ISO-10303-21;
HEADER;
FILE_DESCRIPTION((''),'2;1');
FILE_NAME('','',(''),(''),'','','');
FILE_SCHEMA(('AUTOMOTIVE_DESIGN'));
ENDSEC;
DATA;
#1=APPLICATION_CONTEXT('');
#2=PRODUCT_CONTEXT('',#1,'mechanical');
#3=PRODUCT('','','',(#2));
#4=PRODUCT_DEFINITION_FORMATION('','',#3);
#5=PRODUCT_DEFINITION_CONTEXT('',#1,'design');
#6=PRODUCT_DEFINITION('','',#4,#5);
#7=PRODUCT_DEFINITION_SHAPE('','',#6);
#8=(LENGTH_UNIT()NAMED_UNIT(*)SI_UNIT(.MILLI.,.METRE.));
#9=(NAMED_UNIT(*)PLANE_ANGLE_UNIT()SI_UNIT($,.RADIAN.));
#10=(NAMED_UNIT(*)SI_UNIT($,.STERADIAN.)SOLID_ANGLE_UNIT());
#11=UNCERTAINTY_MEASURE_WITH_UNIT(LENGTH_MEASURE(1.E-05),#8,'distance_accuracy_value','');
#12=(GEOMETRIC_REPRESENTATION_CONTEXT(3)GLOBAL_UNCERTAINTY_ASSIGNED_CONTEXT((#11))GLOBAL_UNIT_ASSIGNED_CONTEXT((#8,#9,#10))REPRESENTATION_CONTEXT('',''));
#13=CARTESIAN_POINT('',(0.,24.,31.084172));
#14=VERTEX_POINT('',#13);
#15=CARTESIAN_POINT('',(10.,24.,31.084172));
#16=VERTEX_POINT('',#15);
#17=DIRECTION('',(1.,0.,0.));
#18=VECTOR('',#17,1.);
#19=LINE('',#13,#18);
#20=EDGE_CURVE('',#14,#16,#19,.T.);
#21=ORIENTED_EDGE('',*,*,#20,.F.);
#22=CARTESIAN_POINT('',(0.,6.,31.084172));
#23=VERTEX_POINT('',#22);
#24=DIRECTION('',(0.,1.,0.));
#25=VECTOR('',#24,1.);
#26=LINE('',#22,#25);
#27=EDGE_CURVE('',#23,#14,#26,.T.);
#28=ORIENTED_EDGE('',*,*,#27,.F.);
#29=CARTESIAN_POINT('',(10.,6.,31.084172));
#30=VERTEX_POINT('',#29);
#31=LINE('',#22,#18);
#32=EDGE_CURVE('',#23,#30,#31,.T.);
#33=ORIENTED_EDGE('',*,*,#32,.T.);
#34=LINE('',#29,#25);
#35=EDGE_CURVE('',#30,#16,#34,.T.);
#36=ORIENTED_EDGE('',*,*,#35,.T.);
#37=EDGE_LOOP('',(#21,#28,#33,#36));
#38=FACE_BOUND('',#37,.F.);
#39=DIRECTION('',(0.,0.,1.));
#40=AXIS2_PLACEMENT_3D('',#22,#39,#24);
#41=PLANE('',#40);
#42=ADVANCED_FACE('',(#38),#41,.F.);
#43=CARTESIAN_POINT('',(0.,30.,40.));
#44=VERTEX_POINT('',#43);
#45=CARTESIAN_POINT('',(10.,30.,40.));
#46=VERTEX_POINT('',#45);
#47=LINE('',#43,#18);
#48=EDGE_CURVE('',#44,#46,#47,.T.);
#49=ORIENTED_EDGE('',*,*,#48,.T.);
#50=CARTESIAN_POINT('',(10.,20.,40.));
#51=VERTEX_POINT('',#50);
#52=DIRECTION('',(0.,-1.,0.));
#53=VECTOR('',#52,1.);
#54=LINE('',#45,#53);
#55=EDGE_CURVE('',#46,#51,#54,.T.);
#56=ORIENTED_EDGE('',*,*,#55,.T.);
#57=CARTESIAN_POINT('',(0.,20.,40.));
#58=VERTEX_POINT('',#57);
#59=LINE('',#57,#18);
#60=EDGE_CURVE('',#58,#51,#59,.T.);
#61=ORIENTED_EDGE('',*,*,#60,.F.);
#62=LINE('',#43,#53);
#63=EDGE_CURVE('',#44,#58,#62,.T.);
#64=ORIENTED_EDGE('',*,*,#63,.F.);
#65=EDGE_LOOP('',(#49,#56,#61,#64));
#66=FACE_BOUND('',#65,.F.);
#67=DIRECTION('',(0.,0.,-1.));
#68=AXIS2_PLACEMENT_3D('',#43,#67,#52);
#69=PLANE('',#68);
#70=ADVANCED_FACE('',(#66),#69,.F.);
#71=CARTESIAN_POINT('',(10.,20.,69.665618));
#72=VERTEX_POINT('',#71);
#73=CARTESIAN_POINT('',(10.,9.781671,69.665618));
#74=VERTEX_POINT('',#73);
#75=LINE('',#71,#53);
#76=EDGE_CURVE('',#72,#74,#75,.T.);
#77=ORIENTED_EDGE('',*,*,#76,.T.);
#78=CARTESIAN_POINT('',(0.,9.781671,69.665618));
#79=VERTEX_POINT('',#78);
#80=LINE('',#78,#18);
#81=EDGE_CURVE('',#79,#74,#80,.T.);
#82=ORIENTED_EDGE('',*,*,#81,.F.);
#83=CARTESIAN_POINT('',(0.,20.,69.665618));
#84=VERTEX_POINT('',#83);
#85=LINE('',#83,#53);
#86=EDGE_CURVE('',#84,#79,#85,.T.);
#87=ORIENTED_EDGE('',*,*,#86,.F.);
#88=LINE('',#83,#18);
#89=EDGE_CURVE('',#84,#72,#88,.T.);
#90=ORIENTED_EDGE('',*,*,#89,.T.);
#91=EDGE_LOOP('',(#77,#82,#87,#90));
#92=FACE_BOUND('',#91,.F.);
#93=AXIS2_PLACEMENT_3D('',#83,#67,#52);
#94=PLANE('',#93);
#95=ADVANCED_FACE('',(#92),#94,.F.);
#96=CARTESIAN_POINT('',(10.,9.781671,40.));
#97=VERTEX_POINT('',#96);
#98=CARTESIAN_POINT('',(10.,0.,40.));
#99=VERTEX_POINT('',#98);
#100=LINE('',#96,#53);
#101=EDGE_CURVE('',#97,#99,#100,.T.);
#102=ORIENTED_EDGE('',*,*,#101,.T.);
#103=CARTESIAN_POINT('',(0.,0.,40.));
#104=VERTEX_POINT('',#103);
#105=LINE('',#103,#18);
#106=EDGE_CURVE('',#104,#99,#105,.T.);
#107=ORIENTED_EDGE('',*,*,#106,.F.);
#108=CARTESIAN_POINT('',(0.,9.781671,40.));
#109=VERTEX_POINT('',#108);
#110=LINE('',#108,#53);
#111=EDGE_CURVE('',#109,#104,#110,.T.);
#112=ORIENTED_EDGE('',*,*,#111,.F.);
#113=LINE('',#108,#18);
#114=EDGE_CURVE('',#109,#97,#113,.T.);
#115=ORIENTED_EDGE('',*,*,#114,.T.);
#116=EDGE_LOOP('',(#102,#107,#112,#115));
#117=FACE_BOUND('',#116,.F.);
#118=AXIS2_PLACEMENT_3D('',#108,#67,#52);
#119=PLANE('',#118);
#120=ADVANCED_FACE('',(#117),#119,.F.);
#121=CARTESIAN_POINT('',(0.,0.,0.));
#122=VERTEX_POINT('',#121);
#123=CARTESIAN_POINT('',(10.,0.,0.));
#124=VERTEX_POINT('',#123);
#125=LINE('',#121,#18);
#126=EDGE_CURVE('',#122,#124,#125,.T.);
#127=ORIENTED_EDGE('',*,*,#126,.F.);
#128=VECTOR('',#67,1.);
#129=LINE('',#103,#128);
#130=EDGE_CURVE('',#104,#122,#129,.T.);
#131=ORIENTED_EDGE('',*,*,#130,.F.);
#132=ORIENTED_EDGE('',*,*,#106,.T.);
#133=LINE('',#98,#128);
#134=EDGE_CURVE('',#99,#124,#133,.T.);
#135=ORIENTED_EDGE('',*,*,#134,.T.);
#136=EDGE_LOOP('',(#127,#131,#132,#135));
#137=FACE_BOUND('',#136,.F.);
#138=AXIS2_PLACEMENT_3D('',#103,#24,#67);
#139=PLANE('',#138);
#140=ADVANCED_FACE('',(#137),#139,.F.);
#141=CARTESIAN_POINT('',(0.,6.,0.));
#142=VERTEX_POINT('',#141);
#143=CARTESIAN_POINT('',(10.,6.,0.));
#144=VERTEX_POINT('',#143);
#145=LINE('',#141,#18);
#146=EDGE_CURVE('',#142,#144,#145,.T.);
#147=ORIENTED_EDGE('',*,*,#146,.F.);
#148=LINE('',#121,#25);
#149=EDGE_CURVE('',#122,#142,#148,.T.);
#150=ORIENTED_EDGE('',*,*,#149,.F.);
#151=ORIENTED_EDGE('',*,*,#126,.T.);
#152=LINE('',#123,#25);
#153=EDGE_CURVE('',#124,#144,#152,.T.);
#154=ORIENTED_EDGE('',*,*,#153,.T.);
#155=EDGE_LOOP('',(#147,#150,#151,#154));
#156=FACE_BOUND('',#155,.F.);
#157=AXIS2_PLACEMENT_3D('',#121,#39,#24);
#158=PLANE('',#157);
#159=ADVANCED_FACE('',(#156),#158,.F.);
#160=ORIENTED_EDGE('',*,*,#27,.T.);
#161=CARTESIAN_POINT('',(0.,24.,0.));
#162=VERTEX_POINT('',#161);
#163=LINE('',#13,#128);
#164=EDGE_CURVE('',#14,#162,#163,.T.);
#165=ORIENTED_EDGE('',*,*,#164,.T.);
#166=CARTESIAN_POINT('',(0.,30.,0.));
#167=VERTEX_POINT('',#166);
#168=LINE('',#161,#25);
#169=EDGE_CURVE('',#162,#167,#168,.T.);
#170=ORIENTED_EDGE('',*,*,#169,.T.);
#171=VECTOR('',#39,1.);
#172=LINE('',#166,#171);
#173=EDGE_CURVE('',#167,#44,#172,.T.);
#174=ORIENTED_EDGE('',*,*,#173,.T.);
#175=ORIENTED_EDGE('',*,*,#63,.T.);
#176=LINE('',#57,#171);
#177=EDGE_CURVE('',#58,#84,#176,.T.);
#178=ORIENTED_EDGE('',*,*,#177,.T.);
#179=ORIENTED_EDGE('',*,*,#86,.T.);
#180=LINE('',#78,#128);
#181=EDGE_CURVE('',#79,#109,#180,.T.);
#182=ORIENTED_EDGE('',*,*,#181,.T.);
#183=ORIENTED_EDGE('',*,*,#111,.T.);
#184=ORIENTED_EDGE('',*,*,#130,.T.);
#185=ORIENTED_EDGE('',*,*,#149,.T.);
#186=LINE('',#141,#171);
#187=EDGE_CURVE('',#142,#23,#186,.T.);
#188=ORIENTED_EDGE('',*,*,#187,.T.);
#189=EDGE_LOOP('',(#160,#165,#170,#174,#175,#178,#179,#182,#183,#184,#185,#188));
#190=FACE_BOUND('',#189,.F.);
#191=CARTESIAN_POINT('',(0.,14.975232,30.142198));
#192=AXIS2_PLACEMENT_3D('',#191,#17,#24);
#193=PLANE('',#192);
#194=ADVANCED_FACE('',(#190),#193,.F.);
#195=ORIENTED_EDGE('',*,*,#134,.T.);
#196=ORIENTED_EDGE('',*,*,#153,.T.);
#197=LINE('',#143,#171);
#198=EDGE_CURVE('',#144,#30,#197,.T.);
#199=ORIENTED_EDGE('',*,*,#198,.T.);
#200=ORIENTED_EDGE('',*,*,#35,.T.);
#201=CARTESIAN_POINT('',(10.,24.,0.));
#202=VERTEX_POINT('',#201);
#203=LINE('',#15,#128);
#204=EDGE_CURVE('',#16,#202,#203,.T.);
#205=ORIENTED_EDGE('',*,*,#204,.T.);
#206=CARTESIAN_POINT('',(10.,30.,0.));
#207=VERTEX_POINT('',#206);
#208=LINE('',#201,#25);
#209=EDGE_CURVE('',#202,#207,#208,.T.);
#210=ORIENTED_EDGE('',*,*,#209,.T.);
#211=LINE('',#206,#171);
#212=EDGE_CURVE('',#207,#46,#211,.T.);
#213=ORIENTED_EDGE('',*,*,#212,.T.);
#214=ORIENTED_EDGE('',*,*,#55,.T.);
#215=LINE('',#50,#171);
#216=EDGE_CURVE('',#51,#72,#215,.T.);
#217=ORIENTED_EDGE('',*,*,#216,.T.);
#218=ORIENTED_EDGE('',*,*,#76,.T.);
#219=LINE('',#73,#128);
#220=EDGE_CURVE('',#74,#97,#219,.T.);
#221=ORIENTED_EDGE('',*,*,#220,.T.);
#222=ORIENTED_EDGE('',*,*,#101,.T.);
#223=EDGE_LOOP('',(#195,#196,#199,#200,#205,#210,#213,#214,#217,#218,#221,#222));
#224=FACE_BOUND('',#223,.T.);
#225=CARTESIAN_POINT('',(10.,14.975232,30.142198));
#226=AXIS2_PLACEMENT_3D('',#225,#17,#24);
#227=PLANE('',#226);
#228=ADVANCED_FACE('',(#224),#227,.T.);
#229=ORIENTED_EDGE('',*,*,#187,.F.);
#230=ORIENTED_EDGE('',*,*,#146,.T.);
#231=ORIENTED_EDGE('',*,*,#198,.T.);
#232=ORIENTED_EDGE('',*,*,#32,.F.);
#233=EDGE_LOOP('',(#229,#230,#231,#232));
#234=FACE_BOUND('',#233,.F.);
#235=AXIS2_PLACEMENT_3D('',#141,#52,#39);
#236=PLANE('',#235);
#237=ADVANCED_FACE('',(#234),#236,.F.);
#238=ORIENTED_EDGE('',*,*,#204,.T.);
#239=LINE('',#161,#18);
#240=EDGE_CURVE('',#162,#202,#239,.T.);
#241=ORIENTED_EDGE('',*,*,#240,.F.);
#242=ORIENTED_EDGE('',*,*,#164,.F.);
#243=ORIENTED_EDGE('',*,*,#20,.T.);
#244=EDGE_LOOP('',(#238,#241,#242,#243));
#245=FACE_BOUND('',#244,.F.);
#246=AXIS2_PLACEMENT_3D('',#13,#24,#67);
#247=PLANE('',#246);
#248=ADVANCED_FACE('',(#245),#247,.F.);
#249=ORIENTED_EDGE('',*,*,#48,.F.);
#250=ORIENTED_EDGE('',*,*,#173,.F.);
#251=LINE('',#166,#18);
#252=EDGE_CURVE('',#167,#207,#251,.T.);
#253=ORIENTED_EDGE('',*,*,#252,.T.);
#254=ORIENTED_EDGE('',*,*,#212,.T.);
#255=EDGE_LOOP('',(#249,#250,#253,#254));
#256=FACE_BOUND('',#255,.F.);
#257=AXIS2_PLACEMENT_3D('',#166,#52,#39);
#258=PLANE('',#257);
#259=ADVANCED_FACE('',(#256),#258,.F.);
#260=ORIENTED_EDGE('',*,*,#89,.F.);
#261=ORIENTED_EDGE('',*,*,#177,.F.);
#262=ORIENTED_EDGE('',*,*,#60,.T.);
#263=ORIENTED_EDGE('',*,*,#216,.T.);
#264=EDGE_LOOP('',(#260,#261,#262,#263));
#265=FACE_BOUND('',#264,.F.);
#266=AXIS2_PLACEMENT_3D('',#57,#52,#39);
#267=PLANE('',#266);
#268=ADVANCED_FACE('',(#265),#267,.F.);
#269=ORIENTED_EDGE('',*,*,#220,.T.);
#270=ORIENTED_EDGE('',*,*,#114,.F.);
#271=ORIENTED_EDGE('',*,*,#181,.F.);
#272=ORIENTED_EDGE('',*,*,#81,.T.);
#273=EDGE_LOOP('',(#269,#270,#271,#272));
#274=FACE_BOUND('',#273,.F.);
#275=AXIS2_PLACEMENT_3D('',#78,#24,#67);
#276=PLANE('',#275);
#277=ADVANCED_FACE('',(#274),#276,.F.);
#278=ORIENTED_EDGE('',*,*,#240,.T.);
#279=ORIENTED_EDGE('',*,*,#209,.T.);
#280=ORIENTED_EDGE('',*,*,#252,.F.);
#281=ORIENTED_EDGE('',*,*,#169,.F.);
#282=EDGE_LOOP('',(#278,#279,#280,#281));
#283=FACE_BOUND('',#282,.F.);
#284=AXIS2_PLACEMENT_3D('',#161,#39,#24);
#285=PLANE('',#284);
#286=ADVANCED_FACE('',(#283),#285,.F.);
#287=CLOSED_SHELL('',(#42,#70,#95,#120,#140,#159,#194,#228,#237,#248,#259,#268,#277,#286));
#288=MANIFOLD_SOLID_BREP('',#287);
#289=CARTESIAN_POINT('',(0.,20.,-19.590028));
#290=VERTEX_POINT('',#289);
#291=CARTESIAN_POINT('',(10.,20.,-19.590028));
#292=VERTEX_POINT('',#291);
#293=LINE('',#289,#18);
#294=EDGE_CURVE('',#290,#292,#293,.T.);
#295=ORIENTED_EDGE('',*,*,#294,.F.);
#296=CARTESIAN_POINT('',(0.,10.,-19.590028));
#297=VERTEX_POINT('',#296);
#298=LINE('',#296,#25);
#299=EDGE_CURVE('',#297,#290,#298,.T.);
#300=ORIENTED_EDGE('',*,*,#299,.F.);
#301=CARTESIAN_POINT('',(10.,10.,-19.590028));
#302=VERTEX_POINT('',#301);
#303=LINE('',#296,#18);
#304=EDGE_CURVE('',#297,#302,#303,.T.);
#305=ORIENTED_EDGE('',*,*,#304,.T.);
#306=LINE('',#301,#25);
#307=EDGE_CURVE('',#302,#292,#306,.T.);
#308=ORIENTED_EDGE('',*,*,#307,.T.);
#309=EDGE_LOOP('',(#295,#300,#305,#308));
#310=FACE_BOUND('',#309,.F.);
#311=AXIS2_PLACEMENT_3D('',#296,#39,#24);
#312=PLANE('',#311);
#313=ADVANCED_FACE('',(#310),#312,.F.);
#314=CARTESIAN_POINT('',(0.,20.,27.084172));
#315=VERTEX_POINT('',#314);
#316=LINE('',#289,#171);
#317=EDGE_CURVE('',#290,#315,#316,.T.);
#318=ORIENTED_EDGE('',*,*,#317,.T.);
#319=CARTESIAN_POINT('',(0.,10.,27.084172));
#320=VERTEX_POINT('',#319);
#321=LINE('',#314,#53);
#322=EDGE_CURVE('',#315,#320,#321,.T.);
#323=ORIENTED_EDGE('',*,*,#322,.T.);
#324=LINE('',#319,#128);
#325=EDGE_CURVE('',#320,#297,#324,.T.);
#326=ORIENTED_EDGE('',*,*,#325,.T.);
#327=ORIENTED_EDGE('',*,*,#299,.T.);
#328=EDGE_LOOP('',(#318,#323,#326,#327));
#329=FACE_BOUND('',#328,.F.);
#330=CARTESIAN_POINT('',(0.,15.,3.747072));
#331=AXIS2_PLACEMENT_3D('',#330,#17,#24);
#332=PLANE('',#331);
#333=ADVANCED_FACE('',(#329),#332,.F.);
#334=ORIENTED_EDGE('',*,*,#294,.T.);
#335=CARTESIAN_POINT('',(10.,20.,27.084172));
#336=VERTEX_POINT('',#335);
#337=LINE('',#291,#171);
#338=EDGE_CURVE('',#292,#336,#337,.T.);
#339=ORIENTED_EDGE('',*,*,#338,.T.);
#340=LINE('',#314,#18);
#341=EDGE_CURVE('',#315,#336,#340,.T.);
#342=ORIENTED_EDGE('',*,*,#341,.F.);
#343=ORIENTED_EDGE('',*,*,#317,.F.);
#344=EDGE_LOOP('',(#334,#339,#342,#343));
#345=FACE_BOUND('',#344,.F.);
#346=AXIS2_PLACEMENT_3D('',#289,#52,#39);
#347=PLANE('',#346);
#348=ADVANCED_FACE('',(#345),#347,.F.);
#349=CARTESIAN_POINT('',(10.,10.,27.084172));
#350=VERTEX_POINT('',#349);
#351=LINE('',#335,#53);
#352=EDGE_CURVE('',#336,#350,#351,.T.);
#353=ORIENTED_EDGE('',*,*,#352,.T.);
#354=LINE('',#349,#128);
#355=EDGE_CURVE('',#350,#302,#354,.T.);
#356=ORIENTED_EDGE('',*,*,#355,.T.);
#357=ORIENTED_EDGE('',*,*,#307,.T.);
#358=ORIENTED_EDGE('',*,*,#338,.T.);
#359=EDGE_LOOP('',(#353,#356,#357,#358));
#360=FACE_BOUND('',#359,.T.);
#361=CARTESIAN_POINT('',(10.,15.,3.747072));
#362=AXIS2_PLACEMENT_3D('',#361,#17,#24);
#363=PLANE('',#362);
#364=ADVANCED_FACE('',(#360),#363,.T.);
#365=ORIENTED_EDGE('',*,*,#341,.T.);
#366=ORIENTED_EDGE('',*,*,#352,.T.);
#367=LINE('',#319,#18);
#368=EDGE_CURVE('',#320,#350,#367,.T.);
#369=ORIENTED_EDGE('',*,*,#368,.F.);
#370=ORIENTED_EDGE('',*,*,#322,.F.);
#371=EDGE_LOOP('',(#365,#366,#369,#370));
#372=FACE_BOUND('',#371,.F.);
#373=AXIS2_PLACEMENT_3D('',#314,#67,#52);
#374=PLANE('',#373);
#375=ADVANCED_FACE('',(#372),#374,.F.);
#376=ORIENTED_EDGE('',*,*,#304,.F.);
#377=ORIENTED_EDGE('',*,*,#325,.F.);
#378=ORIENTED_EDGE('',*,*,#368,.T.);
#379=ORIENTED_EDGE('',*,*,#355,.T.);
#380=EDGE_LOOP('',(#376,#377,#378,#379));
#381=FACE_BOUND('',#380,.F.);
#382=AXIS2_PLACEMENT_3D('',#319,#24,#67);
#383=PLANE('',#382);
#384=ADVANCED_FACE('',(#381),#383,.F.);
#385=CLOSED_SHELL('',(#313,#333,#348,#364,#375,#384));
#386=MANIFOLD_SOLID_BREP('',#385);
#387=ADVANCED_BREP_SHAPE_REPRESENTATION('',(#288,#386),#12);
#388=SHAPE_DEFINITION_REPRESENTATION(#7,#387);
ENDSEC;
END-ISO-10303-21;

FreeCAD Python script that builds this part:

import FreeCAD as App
import Part
import Sketcher


def add_polygon(sketch, points):
    """Adds a closed chain of lines whose ends are joined by coincident constraints."""
    first, n = sketch.GeometryCount, len(points)
    for a, b in zip(points, points[1:] + points[:1]):
        sketch.addGeometry(Part.LineSegment(App.Vector(*a, 0), App.Vector(*b, 0)), False)
    for i in range(n):
        sketch.addConstraint(Sketcher.Constraint("Coincident", first + i, 2, first + (i + 1) % n, 1))

doc = App.newDocument("Part")
body = doc.addObject("PartDesign::Body", "Body")
body.AllowCompound = True

sketch1 = body.newObject("Sketcher::SketchObject", "Sketch")
sketch1.AttachmentSupport = (doc.getObject("YZ_Plane"), [""])
sketch1.MapMode = "FlatFace"
add_polygon(sketch1, [(0, 40), (0, 0), (6, 0), (6, 31), (24, 31), (24, 0), (30, 0), (30, 40), (20, 40), (20, 70), (10, 70), (10, 40)])
add_polygon(sketch1, [(20, 27), (10, 27), (10, -20), (20, -20)])
sketch1.addConstraint(Sketcher.Constraint("Vertical", 0))
sketch1.addConstraint(Sketcher.Constraint("Horizontal", 1))
sketch1.addConstraint(Sketcher.Constraint("Vertical", 2))
sketch1.addConstraint(Sketcher.Constraint("Horizontal", 3))
sketch1.addConstraint(Sketcher.Constraint("Vertical", 4))
sketch1.addConstraint(Sketcher.Constraint("Horizontal", 5))
sketch1.addConstraint(Sketcher.Constraint("Vertical", 6))
sketch1.addConstraint(Sketcher.Constraint("Horizontal", 7))
sketch1.addConstraint(Sketcher.Constraint("Vertical", 8))
sketch1.addConstraint(Sketcher.Constraint("Horizontal", 9))
sketch1.addConstraint(Sketcher.Constraint("Vertical", 10))
sketch1.addConstraint(Sketcher.Constraint("Horizontal", 11))
sketch1.addConstraint(Sketcher.Constraint("Horizontal", 12))
sketch1.addConstraint(Sketcher.Constraint("Vertical", 13))
sketch1.addConstraint(Sketcher.Constraint("Horizontal", 14))
sketch1.addConstraint(Sketcher.Constraint("Vertical", 15))
sketch1.addConstraint(Sketcher.Constraint("Coincident", 0, 2, -1, 1))
sketch1.addConstraint(Sketcher.Constraint("PointOnObject", 4, 2, -1))
sketch1.addConstraint(Sketcher.Constraint("Horizontal", 7, 2, 10, 2))
sketch1.addConstraint(Sketcher.Constraint("Vertical", 8, 2, 14, 2))
sketch1.addConstraint(Sketcher.Constraint("Equal", 1, 5))
sketch1.addConstraint(Sketcher.Constraint("Equal", 7, 12))
sketch1.addConstraint(Sketcher.Constraint("DistanceX", 1, 1, 1, 2, 6.0))
sketch1.addConstraint(Sketcher.Constraint("DistanceX", 3, 1, 3, 2, 18.0))
sketch1.addConstraint(Sketcher.Constraint("DistanceX", 7, 2, 7, 1, 10.0))
sketch1.addConstraint(Sketcher.Constraint("DistanceY", 0, 2, 0, 1, 40.0))
sketch1.addConstraint(Sketcher.Constraint("DistanceY", 12, 2, 2, 2, 4.0))
sketch1.addConstraint(Sketcher.Constraint("DistanceY", 13, 2, 13, 1, 46.6742))
sketch1.addConstraint(Sketcher.Constraint("DistanceX", 9, 2, 9, 1, 10.218329))
sketch1.addConstraint(Sketcher.Constraint("DistanceY", 2, 1, 2, 2, 31.084172))
sketch1.addConstraint(Sketcher.Constraint("DistanceY", 8, 1, 8, 2, 29.665618))
pad1 = body.newObject("PartDesign::Pad", "Pad")
pad1.Profile = sketch1
pad1.Length = 10

doc.recompute()
